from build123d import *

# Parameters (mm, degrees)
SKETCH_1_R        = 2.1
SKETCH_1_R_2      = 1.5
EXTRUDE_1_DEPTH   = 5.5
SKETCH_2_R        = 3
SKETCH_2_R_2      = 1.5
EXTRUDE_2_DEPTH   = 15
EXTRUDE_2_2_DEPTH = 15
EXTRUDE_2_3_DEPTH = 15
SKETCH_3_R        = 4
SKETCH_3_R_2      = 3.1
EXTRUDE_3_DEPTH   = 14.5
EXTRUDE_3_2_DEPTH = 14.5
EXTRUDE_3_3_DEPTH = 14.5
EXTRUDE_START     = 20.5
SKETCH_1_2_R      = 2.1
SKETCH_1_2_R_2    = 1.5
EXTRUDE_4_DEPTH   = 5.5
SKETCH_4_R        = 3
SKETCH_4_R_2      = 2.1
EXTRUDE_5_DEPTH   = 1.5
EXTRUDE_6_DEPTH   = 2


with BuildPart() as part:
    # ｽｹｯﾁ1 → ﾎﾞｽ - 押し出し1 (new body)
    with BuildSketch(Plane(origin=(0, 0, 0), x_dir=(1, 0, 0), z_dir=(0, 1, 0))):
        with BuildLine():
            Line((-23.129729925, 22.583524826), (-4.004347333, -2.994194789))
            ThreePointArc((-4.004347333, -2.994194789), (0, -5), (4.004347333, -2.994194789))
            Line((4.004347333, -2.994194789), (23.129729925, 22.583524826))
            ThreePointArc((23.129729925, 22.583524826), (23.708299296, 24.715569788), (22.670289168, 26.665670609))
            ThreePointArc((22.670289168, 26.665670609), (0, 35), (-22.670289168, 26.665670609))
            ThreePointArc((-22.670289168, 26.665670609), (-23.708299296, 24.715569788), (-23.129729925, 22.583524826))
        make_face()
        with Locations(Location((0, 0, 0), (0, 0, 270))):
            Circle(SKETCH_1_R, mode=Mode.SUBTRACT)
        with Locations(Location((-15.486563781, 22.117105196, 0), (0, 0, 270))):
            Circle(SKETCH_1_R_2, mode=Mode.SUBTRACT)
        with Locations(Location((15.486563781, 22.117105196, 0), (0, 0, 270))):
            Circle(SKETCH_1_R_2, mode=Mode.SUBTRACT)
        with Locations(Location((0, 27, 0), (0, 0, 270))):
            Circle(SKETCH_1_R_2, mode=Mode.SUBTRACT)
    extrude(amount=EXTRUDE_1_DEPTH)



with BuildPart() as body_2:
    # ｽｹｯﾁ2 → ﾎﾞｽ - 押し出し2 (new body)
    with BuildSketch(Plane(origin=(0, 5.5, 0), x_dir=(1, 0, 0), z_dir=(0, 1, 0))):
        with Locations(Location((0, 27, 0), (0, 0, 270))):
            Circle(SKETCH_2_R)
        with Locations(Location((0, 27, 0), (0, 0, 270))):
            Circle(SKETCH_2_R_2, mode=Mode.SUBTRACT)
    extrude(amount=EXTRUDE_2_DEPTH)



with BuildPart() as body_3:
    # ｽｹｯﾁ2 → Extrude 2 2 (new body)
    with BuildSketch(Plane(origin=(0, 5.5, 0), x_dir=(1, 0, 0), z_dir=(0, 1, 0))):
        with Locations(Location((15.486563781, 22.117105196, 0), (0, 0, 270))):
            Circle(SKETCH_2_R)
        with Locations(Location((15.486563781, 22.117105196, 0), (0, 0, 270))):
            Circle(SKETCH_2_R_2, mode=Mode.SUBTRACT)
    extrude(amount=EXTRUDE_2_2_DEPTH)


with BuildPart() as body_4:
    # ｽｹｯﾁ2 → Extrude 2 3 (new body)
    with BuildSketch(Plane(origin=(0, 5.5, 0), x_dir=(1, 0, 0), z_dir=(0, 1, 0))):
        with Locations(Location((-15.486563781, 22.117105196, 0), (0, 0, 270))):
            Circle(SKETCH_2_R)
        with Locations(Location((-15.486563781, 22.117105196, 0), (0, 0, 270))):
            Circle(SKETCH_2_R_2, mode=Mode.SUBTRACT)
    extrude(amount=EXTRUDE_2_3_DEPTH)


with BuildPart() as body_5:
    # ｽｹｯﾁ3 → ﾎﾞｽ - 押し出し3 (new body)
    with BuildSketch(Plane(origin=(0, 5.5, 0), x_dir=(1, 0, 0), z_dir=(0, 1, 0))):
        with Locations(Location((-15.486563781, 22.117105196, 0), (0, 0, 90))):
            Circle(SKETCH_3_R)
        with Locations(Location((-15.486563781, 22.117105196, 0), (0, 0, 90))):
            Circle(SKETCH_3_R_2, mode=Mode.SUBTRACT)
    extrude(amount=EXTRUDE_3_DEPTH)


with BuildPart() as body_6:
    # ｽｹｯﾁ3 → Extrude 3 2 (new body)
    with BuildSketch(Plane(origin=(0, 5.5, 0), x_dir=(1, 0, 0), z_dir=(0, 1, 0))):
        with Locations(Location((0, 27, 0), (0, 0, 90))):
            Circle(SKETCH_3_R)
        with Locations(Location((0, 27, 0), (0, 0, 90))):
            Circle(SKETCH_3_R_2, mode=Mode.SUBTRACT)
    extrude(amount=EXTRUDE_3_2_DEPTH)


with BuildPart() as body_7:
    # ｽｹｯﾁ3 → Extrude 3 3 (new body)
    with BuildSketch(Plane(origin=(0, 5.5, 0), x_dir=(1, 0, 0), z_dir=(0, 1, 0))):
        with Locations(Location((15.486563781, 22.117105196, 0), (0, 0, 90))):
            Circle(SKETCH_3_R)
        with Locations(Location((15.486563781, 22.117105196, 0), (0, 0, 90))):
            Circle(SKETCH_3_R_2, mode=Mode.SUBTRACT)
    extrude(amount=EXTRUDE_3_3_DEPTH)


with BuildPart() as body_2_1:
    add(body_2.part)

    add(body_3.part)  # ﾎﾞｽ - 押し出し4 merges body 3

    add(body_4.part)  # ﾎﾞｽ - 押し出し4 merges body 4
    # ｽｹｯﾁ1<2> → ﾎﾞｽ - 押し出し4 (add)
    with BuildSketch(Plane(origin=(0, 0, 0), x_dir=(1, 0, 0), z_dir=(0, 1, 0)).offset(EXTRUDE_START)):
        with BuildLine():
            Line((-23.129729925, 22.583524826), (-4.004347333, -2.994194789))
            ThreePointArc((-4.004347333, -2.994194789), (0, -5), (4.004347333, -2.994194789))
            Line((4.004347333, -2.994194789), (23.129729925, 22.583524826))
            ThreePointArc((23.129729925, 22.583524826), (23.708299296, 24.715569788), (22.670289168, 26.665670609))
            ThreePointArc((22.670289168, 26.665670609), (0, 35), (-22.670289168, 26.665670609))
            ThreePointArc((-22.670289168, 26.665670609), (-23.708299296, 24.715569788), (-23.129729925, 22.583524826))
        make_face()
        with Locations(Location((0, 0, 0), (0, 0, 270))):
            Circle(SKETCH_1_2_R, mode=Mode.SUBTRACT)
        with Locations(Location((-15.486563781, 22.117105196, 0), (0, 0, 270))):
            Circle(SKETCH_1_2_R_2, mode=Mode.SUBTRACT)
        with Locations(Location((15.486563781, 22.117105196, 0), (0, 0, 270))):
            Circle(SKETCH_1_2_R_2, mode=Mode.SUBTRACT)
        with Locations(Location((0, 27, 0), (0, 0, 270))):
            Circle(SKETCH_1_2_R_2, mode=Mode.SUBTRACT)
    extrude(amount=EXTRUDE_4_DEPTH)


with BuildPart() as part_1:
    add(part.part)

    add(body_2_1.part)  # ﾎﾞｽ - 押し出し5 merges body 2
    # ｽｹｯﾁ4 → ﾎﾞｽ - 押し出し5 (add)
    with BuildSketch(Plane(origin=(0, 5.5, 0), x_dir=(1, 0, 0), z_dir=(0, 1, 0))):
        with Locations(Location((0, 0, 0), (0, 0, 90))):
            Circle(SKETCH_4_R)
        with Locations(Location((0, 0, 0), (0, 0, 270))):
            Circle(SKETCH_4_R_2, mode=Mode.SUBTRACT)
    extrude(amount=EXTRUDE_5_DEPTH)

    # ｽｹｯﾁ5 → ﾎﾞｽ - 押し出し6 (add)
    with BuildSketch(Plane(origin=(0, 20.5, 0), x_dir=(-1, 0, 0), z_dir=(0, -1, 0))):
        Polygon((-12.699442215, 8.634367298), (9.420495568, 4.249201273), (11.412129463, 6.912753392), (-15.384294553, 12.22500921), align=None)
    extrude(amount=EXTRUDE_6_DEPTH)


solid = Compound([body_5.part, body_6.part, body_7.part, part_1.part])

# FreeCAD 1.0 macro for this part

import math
import FreeCAD as App
import Part
import Sketcher

V = App.Vector
Q = App.Units.Quantity

doc = App.newDocument("Part")
body = doc.addObject("PartDesign::Body", "Body")

# Sketch on XZ plane
sketch1 = body.newObject("Sketcher::SketchObject", "Sketch")
sketch1.AttachmentSupport = (doc.getObject("XZ_Plane"), [""])
sketch1.MapMode = "FlatFace"
sketch1.addGeometry([
    Part.LineSegment(V(-23.1, -22.6, 0), V(-4, 3, 0)),  # 0
    Part.ArcOfCircle(Part.Circle(V(0, 0, 0), V(0, 0, 1), 5), math.radians(37), math.radians(143)),  # 1
    Part.LineSegment(V(4, 3, 0), V(23.1, -22.6, 0)),  # 2
    Part.ArcOfCircle(Part.Circle(V(20.7, -24.4, 0), V(0, 0, 1), 3), math.radians(-50), math.radians(37)),  # 3
    Part.ArcOfCircle(Part.Circle(V(0, 0, 0), V(0, 0, 1), 35), math.radians(-130), math.radians(-50)),  # 4
    Part.ArcOfCircle(Part.Circle(V(-20.7, -24.4, 0), V(0, 0, 1), 3), math.radians(143), math.radians(230)),  # 5
    Part.Circle(V(0, 0, 0), V(0, 0, 1), 2.1),  # 6
    Part.Circle(V(-15.5, -22.1, 0), V(0, 0, 1), 1.5),  # 7
    Part.Circle(V(0, -27, 0), V(0, 0, 1), 1.5),  # 8
    Part.Circle(V(15.5, -22.1, 0), V(0, 0, 1), 1.5),  # 9
], False)
sketch1.addConstraint([
    Sketcher.Constraint("Tangent", 0, 2, 1, 2),
    Sketcher.Constraint("Tangent", 1, 1, 2, 1),
    Sketcher.Constraint("Tangent", 2, 2, 3, 2),
    Sketcher.Constraint("Tangent", 3, 1, 4, 2),
    Sketcher.Constraint("Tangent", 4, 1, 5, 2),
    Sketcher.Constraint("Tangent", 5, 1, 0, 1),
    Sketcher.Constraint("Coincident", 1, 3, -1, 1),
    Sketcher.Constraint("Coincident", 4, 3, -1, 1),
    Sketcher.Constraint("Coincident", 6, 3, -1, 1),
    Sketcher.Constraint("Equal", 3, 5),
    Sketcher.Constraint("Equal", 7, 8),
    Sketcher.Constraint("Equal", 8, 9),
    Sketcher.Constraint("Symmetric", 7, 3, 9, 3, -2),
    Sketcher.Constraint("PointOnObject", 8, 3, -2),
    Sketcher.Constraint("Horizontal", 3, 3, 5, 3),
    Sketcher.Constraint("Diameter", 7, Q("3 mm")),
    Sketcher.Constraint("Radius", 1, Q("5 mm")),
    Sketcher.Constraint("Radius", 3, Q("3 mm")),
    Sketcher.Constraint("Radius", 4, Q("35 mm")),
    Sketcher.Constraint("Diameter", 6, Q("4.2 mm")),
    Sketcher.Constraint("DistanceY", 8, 3, -1, 1, Q("27 mm")),
    Sketcher.Constraint("DistanceY", 7, 3, 0, 2, Q("25.1113 mm")),
    Sketcher.Constraint("DistanceX", -1, 1, 3, 3, Q("20.727122 mm")),
    Sketcher.Constraint("DistanceX", 7, 3, -1, 1, Q("15.486564 mm")),
])
pad1 = body.newObject("PartDesign::Pad", "Pad")
pad1.Profile = sketch1
pad1.Length = 5.5
pad1.Reversed = True
body2 = doc.addObject("PartDesign::Body", "Body001")

# Sketch on XZ plane
sketch2 = body2.newObject("Sketcher::SketchObject", "Sketch001")
sketch2.AttachmentSupport = (doc.getObject("XZ_Plane001"), [""])
sketch2.MapMode = "FlatFace"
sketch2.AttachmentOffset = App.Placement(V(0, 0, -5.5), App.Rotation())
sketch2.addGeometry([
    Part.Circle(V(0, -27, 0), V(0, 0, 1), 3),
    Part.Circle(V(0, -27, 0), V(0, 0, 1), 1.5),
], False)
sketch2.addConstraint([
    Sketcher.Constraint("Coincident", 1, 3, 0, 3),
    Sketcher.Constraint("PointOnObject", 0, 3, -2),
    Sketcher.Constraint("Diameter", 0, Q("6 mm")),
    Sketcher.Constraint("Diameter", 1, Q("3 mm")),
    Sketcher.Constraint("DistanceY", 0, 3, -1, 1, Q("27 mm")),
])
pad2 = body2.newObject("PartDesign::Pad", "Pad001")
pad2.Profile = sketch2
pad2.Length = 15
pad2.Reversed = True
body3 = doc.addObject("PartDesign::Body", "Body002")

# Sketch on XZ plane
sketch3 = body3.newObject("Sketcher::SketchObject", "Sketch002")
sketch3.AttachmentSupport = (doc.getObject("XZ_Plane002"), [""])
sketch3.MapMode = "FlatFace"
sketch3.AttachmentOffset = App.Placement(V(0, 0, -5.5), App.Rotation())
sketch3.addGeometry([
    Part.Circle(V(15.5, -22.1, 0), V(0, 0, 1), 3),
    Part.Circle(V(15.5, -22.1, 0), V(0, 0, 1), 1.5),
], False)
sketch3.addConstraint([
    Sketcher.Constraint("Coincident", 1, 3, 0, 3),
    Sketcher.Constraint("Diameter", 0, Q("6 mm")),
    Sketcher.Constraint("Diameter", 1, Q("3 mm")),
    Sketcher.Constraint("DistanceX", -1, 1, 0, 3, Q("15.486564 mm")),
    Sketcher.Constraint("DistanceY", 0, 3, -1, 1, Q("22.117105 mm")),
])
pad3 = body3.newObject("PartDesign::Pad", "Pad002")
pad3.Profile = sketch3
pad3.Length = 15
pad3.Reversed = True
body4 = doc.addObject("PartDesign::Body", "Body003")

# Sketch on XZ plane
sketch4 = body4.newObject("Sketcher::SketchObject", "Sketch003")
sketch4.AttachmentSupport = (doc.getObject("XZ_Plane003"), [""])
sketch4.MapMode = "FlatFace"
sketch4.AttachmentOffset = App.Placement(V(0, 0, -5.5), App.Rotation())
sketch4.addGeometry([
    Part.Circle(V(-15.5, -22.1, 0), V(0, 0, 1), 3),
    Part.Circle(V(-15.5, -22.1, 0), V(0, 0, 1), 1.5),
], False)
sketch4.addConstraint([
    Sketcher.Constraint("Coincident", 1, 3, 0, 3),
    Sketcher.Constraint("Diameter", 0, Q("6 mm")),
    Sketcher.Constraint("Diameter", 1, Q("3 mm")),
    Sketcher.Constraint("DistanceX", 0, 3, -1, 1, Q("15.486564 mm")),
    Sketcher.Constraint("DistanceY", 0, 3, -1, 1, Q("22.117105 mm")),
])
pad4 = body4.newObject("PartDesign::Pad", "Pad003")
pad4.Profile = sketch4
pad4.Length = 15
pad4.Reversed = True
body5 = doc.addObject("PartDesign::Body", "Body004")

# Sketch on XZ plane
sketch5 = body5.newObject("Sketcher::SketchObject", "Sketch004")
sketch5.AttachmentSupport = (doc.getObject("XZ_Plane004"), [""])
sketch5.MapMode = "FlatFace"
sketch5.AttachmentOffset = App.Placement(V(0, 0, -5.5), App.Rotation())
sketch5.addGeometry([
    Part.Circle(V(-15.5, -22.1, 0), V(0, 0, 1), 4),
    Part.Circle(V(-15.5, -22.1, 0), V(0, 0, 1), 3.1),
], False)
sketch5.addConstraint([
    Sketcher.Constraint("Coincident", 1, 3, 0, 3),
    Sketcher.Constraint("Diameter", 0, Q("8 mm")),
    Sketcher.Constraint("Diameter", 1, Q("6.2 mm")),
    Sketcher.Constraint("DistanceX", 0, 3, -1, 1, Q("15.486564 mm")),
    Sketcher.Constraint("DistanceY", 0, 3, -1, 1, Q("22.117105 mm")),
])
pad5 = body5.newObject("PartDesign::Pad", "Pad004")
pad5.Profile = sketch5
pad5.Length = 14.5
pad5.Reversed = True
body6 = doc.addObject("PartDesign::Body", "Body005")

# Sketch on XZ plane
sketch6 = body6.newObject("Sketcher::SketchObject", "Sketch005")
sketch6.AttachmentSupport = (doc.getObject("XZ_Plane005"), [""])
sketch6.MapMode = "FlatFace"
sketch6.AttachmentOffset = App.Placement(V(0, 0, -5.5), App.Rotation())
sketch6.addGeometry([
    Part.Circle(V(0, -27, 0), V(0, 0, 1), 4),
    Part.Circle(V(0, -27, 0), V(0, 0, 1), 3.1),
], False)
sketch6.addConstraint([
    Sketcher.Constraint("Coincident", 1, 3, 0, 3),
    Sketcher.Constraint("PointOnObject", 0, 3, -2),
    Sketcher.Constraint("Diameter", 0, Q("8 mm")),
    Sketcher.Constraint("Diameter", 1, Q("6.2 mm")),
    Sketcher.Constraint("DistanceY", 0, 3, -1, 1, Q("27 mm")),
])
pad6 = body6.newObject("PartDesign::Pad", "Pad005")
pad6.Profile = sketch6
pad6.Length = 14.5
pad6.Reversed = True
body7 = doc.addObject("PartDesign::Body", "Body006")

# Sketch on XZ plane
sketch7 = body7.newObject("Sketcher::SketchObject", "Sketch006")
sketch7.AttachmentSupport = (doc.getObject("XZ_Plane006"), [""])
sketch7.MapMode = "FlatFace"
sketch7.AttachmentOffset = App.Placement(V(0, 0, -5.5), App.Rotation())
sketch7.addGeometry([
    Part.Circle(V(15.5, -22.1, 0), V(0, 0, 1), 4),
    Part.Circle(V(15.5, -22.1, 0), V(0, 0, 1), 3.1),
], False)
sketch7.addConstraint([
    Sketcher.Constraint("Coincident", 1, 3, 0, 3),
    Sketcher.Constraint("Diameter", 0, Q("8 mm")),
    Sketcher.Constraint("Diameter", 1, Q("6.2 mm")),
    Sketcher.Constraint("DistanceX", -1, 1, 0, 3, Q("15.486564 mm")),
    Sketcher.Constraint("DistanceY", 0, 3, -1, 1, Q("22.117105 mm")),
])
pad7 = body7.newObject("PartDesign::Pad", "Pad006")
pad7.Profile = sketch7
pad7.Length = 14.5
pad7.Reversed = True
body2.AllowCompound = True
doc.recompute()

boolean = body2.newObject("PartDesign::Boolean", "Boolean")
boolean.Type = "Fuse"
boolean.addObjects([body3])
doc.recompute()

boolean2 = body2.newObject("PartDesign::Boolean", "Boolean001")
boolean2.Type = "Fuse"
boolean2.addObjects([body4])

# Sketch on XZ plane
sketch8 = body2.newObject("Sketcher::SketchObject", "Sketch007")
sketch8.AttachmentSupport = (doc.getObject("XZ_Plane001"), [""])
sketch8.MapMode = "FlatFace"
sketch8.AttachmentOffset = App.Placement(V(0, 0, -20.5), App.Rotation())
sketch8.addGeometry([
    Part.LineSegment(V(-23.1, -22.6, 0), V(-4, 3, 0)),  # 0
    Part.ArcOfCircle(Part.Circle(V(0, 0, 0), V(0, 0, 1), 5), math.radians(37), math.radians(143)),  # 1
    Part.LineSegment(V(4, 3, 0), V(23.1, -22.6, 0)),  # 2
    Part.ArcOfCircle(Part.Circle(V(20.7, -24.4, 0), V(0, 0, 1), 3), math.radians(-50), math.radians(37)),  # 3
    Part.ArcOfCircle(Part.Circle(V(0, 0, 0), V(0, 0, 1), 35), math.radians(-130), math.radians(-50)),  # 4
    Part.ArcOfCircle(Part.Circle(V(-20.7, -24.4, 0), V(0, 0, 1), 3), math.radians(143), math.radians(230)),  # 5
    Part.Circle(V(0, 0, 0), V(0, 0, 1), 2.1),  # 6
    Part.Circle(V(-15.5, -22.1, 0), V(0, 0, 1), 1.5),  # 7
    Part.Circle(V(0, -27, 0), V(0, 0, 1), 1.5),  # 8
    Part.Circle(V(15.5, -22.1, 0), V(0, 0, 1), 1.5),  # 9
], False)
sketch8.addConstraint([
    Sketcher.Constraint("Tangent", 0, 2, 1, 2),
    Sketcher.Constraint("Tangent", 1, 1, 2, 1),
    Sketcher.Constraint("Tangent", 2, 2, 3, 2),
    Sketcher.Constraint("Tangent", 3, 1, 4, 2),
    Sketcher.Constraint("Tangent", 4, 1, 5, 2),
    Sketcher.Constraint("Tangent", 5, 1, 0, 1),
    Sketcher.Constraint("Coincident", 1, 3, -1, 1),
    Sketcher.Constraint("Coincident", 4, 3, -1, 1),
    Sketcher.Constraint("Coincident", 6, 3, -1, 1),
    Sketcher.Constraint("Equal", 3, 5),
    Sketcher.Constraint("Equal", 7, 8),
    Sketcher.Constraint("Equal", 8, 9),
    Sketcher.Constraint("Symmetric", 7, 3, 9, 3, -2),
    Sketcher.Constraint("PointOnObject", 8, 3, -2),
    Sketcher.Constraint("Horizontal", 3, 3, 5, 3),
    Sketcher.Constraint("Diameter", 7, Q("3 mm")),
    Sketcher.Constraint("Radius", 1, Q("5 mm")),
    Sketcher.Constraint("Radius", 3, Q("3 mm")),
    Sketcher.Constraint("Radius", 4, Q("35 mm")),
    Sketcher.Constraint("Diameter", 6, Q("4.2 mm")),
    Sketcher.Constraint("DistanceY", 8, 3, -1, 1, Q("27 mm")),
    Sketcher.Constraint("DistanceY", 7, 3, 0, 2, Q("25.1113 mm")),
    Sketcher.Constraint("DistanceX", -1, 1, 3, 3, Q("20.727122 mm")),
    Sketcher.Constraint("DistanceX", 7, 3, -1, 1, Q("15.486564 mm")),
])
pad8 = body2.newObject("PartDesign::Pad", "Pad007")
pad8.Profile = sketch8
pad8.Length = 5.5
pad8.Reversed = True
doc.recompute()

boolean3 = body.newObject("PartDesign::Boolean", "Boolean002")
boolean3.Type = "Fuse"
boolean3.addObjects([body2])

# Sketch on XZ plane
sketch9 = body.newObject("Sketcher::SketchObject", "Sketch008")
sketch9.AttachmentSupport = (doc.getObject("XZ_Plane"), [""])
sketch9.MapMode = "FlatFace"
sketch9.AttachmentOffset = App.Placement(V(0, 0, -5.5), App.Rotation())
sketch9.addGeometry([
    Part.Circle(V(0, 0, 0), V(0, 0, 1), 3),
    Part.Circle(V(0, 0, 0), V(0, 0, 1), 2.1),
], False)
sketch9.addConstraint([
    Sketcher.Constraint("Coincident", 0, 3, -1, 1),
    Sketcher.Constraint("Coincident", 1, 3, -1, 1),
    Sketcher.Constraint("Diameter", 0, Q("6 mm")),
    Sketcher.Constraint("Diameter", 1, Q("4.2 mm")),
])
pad9 = body.newObject("PartDesign::Pad", "Pad008")
pad9.Profile = sketch9
pad9.Length = 1.5
pad9.Reversed = True

# Sketch on XZ plane
sketch10 = body.newObject("Sketcher::SketchObject", "Sketch009")
sketch10.AttachmentSupport = (doc.getObject("XZ_Plane"), [""])
sketch10.MapMode = "FlatFace"
sketch10.AttachmentOffset = App.Placement(V(0, 0, -20.5), App.Rotation())
sketch10.addGeometry([
    Part.LineSegment(V(12.7, -8.6, 0), V(-9.4, -4.2, 0)),
    Part.LineSegment(V(-9.4, -4.2, 0), V(-11.4, -6.9, 0)),
    Part.LineSegment(V(-11.4, -6.9, 0), V(15.4, -12.2, 0)),
    Part.LineSegment(V(15.4, -12.2, 0), V(12.7, -8.6, 0)),
], False)
sketch10.addConstraint([
    Sketcher.Constraint("Coincident", 0, 2, 1, 1),
    Sketcher.Constraint("Coincident", 1, 2, 2, 1),
    Sketcher.Constraint("Coincident", 2, 2, 3, 1),
    Sketcher.Constraint("Coincident", 3, 2, 0, 1),
    Sketcher.Constraint("Parallel", 0, 2),
    Sketcher.Constraint("DistanceY", 0, 2, -1, 1, Q("4.249201 mm")),
    Sketcher.Constraint("Distance", 3, Q("4.48343 mm")),
    Sketcher.Constraint("DistanceX", 1, 2, -1, 1, Q("11.412129 mm")),
    Sketcher.Constraint("DistanceY", 2, 2, -1, 1, Q("12.225009 mm")),
    Sketcher.Constraint("DistanceX", 0, 2, 2, 2, Q("24.80479 mm")),
    Sketcher.Constraint("DistanceY", 2, 2, 3, 2, Q("3.590642 mm")),
    Sketcher.Constraint("DistanceX", 1, 2, 3, 2, Q("24.111572 mm")),
])
pad10 = body.newObject("PartDesign::Pad", "Pad009")
pad10.Profile = sketch10
pad10.Length = 2

doc.recompute()
